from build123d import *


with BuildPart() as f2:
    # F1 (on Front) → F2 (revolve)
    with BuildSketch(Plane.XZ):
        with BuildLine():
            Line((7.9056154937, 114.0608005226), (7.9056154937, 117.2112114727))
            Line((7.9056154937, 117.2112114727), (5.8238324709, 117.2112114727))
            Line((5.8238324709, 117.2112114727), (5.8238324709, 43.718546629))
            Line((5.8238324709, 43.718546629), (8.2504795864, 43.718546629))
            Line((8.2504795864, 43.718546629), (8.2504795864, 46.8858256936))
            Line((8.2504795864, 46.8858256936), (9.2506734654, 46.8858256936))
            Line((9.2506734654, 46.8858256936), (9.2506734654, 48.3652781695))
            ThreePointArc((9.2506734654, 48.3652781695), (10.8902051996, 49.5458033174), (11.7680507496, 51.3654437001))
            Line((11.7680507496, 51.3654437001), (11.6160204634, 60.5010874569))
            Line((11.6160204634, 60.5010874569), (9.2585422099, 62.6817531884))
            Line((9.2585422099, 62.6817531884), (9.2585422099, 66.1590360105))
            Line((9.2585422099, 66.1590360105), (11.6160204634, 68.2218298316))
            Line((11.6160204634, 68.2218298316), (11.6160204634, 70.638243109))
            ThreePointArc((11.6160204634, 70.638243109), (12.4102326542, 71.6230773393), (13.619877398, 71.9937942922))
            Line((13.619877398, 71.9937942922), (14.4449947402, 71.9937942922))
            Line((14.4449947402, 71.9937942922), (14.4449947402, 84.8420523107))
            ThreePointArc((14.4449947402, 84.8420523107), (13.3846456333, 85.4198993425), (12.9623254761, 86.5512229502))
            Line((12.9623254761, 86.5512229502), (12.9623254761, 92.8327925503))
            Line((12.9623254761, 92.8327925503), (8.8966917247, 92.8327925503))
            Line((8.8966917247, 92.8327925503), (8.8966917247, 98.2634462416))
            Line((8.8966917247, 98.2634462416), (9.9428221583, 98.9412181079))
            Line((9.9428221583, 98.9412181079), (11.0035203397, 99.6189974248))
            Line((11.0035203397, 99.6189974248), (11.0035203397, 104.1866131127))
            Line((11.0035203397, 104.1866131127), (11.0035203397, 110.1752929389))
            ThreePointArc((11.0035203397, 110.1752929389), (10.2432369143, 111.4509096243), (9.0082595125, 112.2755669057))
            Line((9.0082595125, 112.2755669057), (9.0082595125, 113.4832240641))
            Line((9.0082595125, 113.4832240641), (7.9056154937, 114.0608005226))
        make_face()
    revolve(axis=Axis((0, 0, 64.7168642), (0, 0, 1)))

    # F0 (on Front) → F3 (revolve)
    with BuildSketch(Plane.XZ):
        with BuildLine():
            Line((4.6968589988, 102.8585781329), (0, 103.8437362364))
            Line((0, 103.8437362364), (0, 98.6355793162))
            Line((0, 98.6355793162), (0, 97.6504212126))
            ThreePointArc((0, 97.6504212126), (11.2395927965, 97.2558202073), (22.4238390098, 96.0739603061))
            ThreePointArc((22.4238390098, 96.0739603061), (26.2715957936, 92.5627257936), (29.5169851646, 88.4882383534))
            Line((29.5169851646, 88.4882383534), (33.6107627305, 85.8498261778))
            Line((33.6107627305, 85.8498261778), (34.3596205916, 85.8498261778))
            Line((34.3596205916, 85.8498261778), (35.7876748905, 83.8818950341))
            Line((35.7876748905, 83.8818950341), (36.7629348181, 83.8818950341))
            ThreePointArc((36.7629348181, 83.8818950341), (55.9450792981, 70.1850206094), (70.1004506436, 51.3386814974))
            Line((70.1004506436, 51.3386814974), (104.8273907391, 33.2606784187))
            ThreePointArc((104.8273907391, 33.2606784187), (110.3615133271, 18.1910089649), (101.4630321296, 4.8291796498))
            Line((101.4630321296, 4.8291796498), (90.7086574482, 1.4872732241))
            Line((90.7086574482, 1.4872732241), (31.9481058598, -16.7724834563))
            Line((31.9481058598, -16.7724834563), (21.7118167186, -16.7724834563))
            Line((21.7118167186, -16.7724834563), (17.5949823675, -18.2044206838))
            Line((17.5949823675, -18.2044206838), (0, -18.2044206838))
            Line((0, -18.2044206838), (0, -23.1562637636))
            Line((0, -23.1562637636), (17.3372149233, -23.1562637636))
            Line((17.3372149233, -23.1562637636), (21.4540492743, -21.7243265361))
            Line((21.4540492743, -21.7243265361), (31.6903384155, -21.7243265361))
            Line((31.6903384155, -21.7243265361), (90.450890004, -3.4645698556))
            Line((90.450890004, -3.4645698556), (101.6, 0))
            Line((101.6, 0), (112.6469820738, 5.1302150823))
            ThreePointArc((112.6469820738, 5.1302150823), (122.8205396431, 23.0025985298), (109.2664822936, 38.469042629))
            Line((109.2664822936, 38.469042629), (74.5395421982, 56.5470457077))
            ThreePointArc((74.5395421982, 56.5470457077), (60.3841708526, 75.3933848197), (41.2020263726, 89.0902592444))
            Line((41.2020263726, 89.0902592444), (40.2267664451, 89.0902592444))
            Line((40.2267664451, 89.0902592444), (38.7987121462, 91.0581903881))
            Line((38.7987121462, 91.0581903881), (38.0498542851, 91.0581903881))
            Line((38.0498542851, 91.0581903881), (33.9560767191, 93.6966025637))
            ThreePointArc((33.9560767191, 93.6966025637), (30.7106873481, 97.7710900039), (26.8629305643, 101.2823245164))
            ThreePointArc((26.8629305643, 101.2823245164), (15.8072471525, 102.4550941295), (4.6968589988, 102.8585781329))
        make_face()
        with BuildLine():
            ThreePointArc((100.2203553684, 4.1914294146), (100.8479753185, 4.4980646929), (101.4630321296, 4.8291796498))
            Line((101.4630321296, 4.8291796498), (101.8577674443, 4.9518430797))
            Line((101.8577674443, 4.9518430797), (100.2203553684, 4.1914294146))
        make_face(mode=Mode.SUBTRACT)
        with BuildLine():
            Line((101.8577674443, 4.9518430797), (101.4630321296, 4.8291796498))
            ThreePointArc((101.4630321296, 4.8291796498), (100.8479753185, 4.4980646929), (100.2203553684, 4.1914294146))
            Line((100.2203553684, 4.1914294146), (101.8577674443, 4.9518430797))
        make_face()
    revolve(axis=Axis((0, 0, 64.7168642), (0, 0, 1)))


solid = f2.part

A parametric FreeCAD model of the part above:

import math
import FreeCAD as App
import Part
import Sketcher
Q = App.Units.Quantity

doc = App.newDocument("Part")
body = doc.addObject("PartDesign::Body", "Body")

# Sketch on XZ plane
sketch1 = doc.addObject("Sketcher::SketchObject", "Sketch")
body.addObject(sketch1)
sketch1.AttachmentSupport = (doc.XZ_Plane, [""])
sketch1.MapMode = "FlatFace"
sketch1.addGeometry([
    Part.LineSegment(App.Vector(7.9, 114.1, 0), App.Vector(7.9, 117.2, 0)),  # 0
    Part.LineSegment(App.Vector(7.9, 117.2, 0), App.Vector(5.8, 117.2, 0)),  # 1
    Part.LineSegment(App.Vector(5.8, 117.2, 0), App.Vector(5.8, 43.7, 0)),  # 2
    Part.LineSegment(App.Vector(5.8, 43.7, 0), App.Vector(8.3, 43.7, 0)),  # 3
    Part.LineSegment(App.Vector(8.3, 43.7, 0), App.Vector(8.3, 46.9, 0)),  # 4
    Part.LineSegment(App.Vector(8.3, 46.9, 0), App.Vector(9.3, 46.9, 0)),  # 5
    Part.LineSegment(App.Vector(9.3, 46.9, 0), App.Vector(9.3, 48.4, 0)),  # 6
    Part.ArcOfCircle(Part.Circle(App.Vector(7.7, 52.2, 0), App.Vector(0, 0, 1), 4.1), math.radians(-68), math.radians(-12)),  # 7
    Part.LineSegment(App.Vector(11.8, 51.4, 0), App.Vector(11.6, 60.5, 0)),  # 8
    Part.LineSegment(App.Vector(11.6, 60.5, 0), App.Vector(9.3, 62.7, 0)),  # 9
    Part.LineSegment(App.Vector(9.3, 62.7, 0), App.Vector(9.3, 66.2, 0)),  # 10
    Part.LineSegment(App.Vector(9.3, 66.2, 0), App.Vector(11.6, 68.2, 0)),  # 11
    Part.LineSegment(App.Vector(11.6, 68.2, 0), App.Vector(11.6, 70.6, 0)),  # 12
    Part.ArcOfCircle(Part.Circle(App.Vector(13.6, 69.8, 0), App.Vector(0, 0, 1), 2.2), math.radians(90), math.radians(158)),  # 13
    Part.LineSegment(App.Vector(13.6, 72, 0), App.Vector(14.4, 72, 0)),  # 14
    Part.LineSegment(App.Vector(14.4, 72, 0), App.Vector(14.4, 84.8, 0)),  # 15
    Part.ArcOfCircle(Part.Circle(App.Vector(14.7, 86.6, 0), App.Vector(0, 0, 1), 1.7), math.radians(180), math.radians(262)),  # 16
    Part.LineSegment(App.Vector(13, 86.6, 0), App.Vector(13, 92.8, 0)),  # 17
    Part.LineSegment(App.Vector(13, 92.8, 0), App.Vector(8.9, 92.8, 0)),  # 18
    Part.LineSegment(App.Vector(8.9, 92.8, 0), App.Vector(8.9, 98.3, 0)),  # 19
    Part.LineSegment(App.Vector(8.9, 98.3, 0), App.Vector(9.9, 98.9, 0)),  # 20
    Part.LineSegment(App.Vector(9.9, 98.9, 0), App.Vector(11, 99.6, 0)),  # 21
    Part.LineSegment(App.Vector(11, 99.6, 0), App.Vector(11, 110.2, 0)),  # 22
    Part.ArcOfCircle(Part.Circle(App.Vector(7.8, 109.1, 0), App.Vector(0, 0, 1), 3.4), math.radians(18), math.radians(69)),  # 23
    Part.LineSegment(App.Vector(9, 112.3, 0), App.Vector(9, 113.5, 0)),  # 24
    Part.LineSegment(App.Vector(9, 113.5, 0), App.Vector(7.9, 114.1, 0)),  # 25
], False)
sketch1.addConstraint([
    Sketcher.Constraint("Coincident", 0, 2, 1, 1),
    Sketcher.Constraint("Coincident", 1, 2, 2, 1),
    Sketcher.Constraint("Coincident", 2, 2, 3, 1),
    Sketcher.Constraint("Coincident", 3, 2, 4, 1),
    Sketcher.Constraint("Coincident", 4, 2, 5, 1),
    Sketcher.Constraint("Coincident", 5, 2, 6, 1),
    Sketcher.Constraint("Coincident", 6, 2, 7, 1),
    Sketcher.Constraint("Coincident", 7, 2, 8, 1),
    Sketcher.Constraint("Coincident", 8, 2, 9, 1),
    Sketcher.Constraint("Coincident", 9, 2, 10, 1),
    Sketcher.Constraint("Coincident", 10, 2, 11, 1),
    Sketcher.Constraint("Coincident", 11, 2, 12, 1),
    Sketcher.Constraint("Coincident", 12, 2, 13, 2),
    Sketcher.Constraint("Tangent", 13, 1, 14, 1),
    Sketcher.Constraint("Coincident", 14, 2, 15, 1),
    Sketcher.Constraint("Coincident", 15, 2, 16, 2),
    Sketcher.Constraint("Tangent", 16, 1, 17, 1),
    Sketcher.Constraint("Coincident", 17, 2, 18, 1),
    Sketcher.Constraint("Coincident", 18, 2, 19, 1),
    Sketcher.Constraint("Coincident", 19, 2, 20, 1),
    Sketcher.Constraint("Coincident", 20, 2, 21, 1),
    Sketcher.Constraint("Coincident", 21, 2, 22, 1),
    Sketcher.Constraint("Coincident", 22, 2, 23, 1),
    Sketcher.Constraint("Coincident", 23, 2, 24, 1),
    Sketcher.Constraint("Coincident", 24, 2, 25, 1),
    Sketcher.Constraint("Coincident", 25, 2, 0, 1),
    Sketcher.Constraint("Vertical", 0),
    Sketcher.Constraint("Horizontal", 1),
    Sketcher.Constraint("Vertical", 2),
    Sketcher.Constraint("Horizontal", 3),
    Sketcher.Constraint("Vertical", 4),
    Sketcher.Constraint("Horizontal", 5),
    Sketcher.Constraint("Vertical", 6),
    Sketcher.Constraint("Vertical", 10),
    Sketcher.Constraint("Vertical", 12),
    Sketcher.Constraint("Horizontal", 14),
    Sketcher.Constraint("Vertical", 15),
    Sketcher.Constraint("Vertical", 17),
    Sketcher.Constraint("Horizontal", 18),
    Sketcher.Constraint("Vertical", 19),
    Sketcher.Constraint("Vertical", 22),
    Sketcher.Constraint("Vertical", 24),
    Sketcher.Constraint("Vertical", 8, 2, 11, 2),
    Sketcher.Constraint("Radius", 7, Q("4.1051 mm")),
    Sketcher.Constraint("Radius", 16, Q("1.726471 mm")),
    Sketcher.Constraint("Radius", 13, Q("2.158886 mm")),
    Sketcher.Constraint("Radius", 23, Q("3.368042 mm")),
    Sketcher.Constraint("DistanceY", 13, 1, 17, 2, Q("20.838998 mm")),
    Sketcher.Constraint("Distance", 20, Q("1.246501 mm")),
    Sketcher.Constraint("DistanceY", 0, 1, 0, 2, Q("3.150411 mm")),
    Sketcher.Constraint("DistanceY", 4, 1, 4, 2, Q("3.167279 mm")),
    Sketcher.Constraint("DistanceY", 15, 1, 15, 2, Q("12.848258 mm")),
    Sketcher.Constraint("DistanceY", 17, 1, 17, 2, Q("6.28157 mm")),
    Sketcher.Constraint("DistanceY", -1, 1, 25, 2, Q("114.060801 mm")),
    Sketcher.Constraint("DistanceY", 7, 3, 23, 3, Q("56.946699 mm")),
    Sketcher.Constraint("DistanceX", 20, 2, 21, 2, Q("1.060698 mm")),
    Sketcher.Constraint("Distance", 8, Q("9.136909 mm")),
    Sketcher.Constraint("DistanceX", 1, 2, 1, 1, Q("2.081783 mm")),
    Sketcher.Constraint("DistanceX", 3, 1, 3, 2, Q("2.426647 mm")),
    Sketcher.Constraint("DistanceX", 5, 1, 5, 2, Q("1.000194 mm")),
    Sketcher.Constraint("DistanceX", 14, 1, 14, 2, Q("0.825117 mm")),
    Sketcher.Constraint("DistanceX", 18, 2, 18, 1, Q("4.065634 mm")),
    Sketcher.Constraint("DistanceY", 2, 2, 2, 1, Q("73.492665 mm")),
    Sketcher.Constraint("DistanceY", 6, 1, 6, 2, Q("1.479452 mm")),
    Sketcher.Constraint("DistanceY", 10, 1, 10, 2, Q("3.477283 mm")),
    Sketcher.Constraint("DistanceY", 12, 1, 12, 2, Q("2.416413 mm")),
    Sketcher.Constraint("DistanceY", 19, 1, 19, 2, Q("5.430654 mm")),
    Sketcher.Constraint("DistanceY", 22, 1, 22, 2, Q("10.556296 mm")),
    Sketcher.Constraint("DistanceY", 24, 1, 24, 2, Q("1.207657 mm")),
    Sketcher.Constraint("DistanceY", -1, 1, 13, 3, Q("69.834908 mm")),
    Sketcher.Constraint("DistanceX", -1, 1, 23, 3, Q("7.801408 mm")),
    Sketcher.Constraint("DistanceY", -1, 1, 23, 3, Q("109.131172 mm")),
    Sketcher.Constraint("DistanceX", -1, 1, 3, 2, Q("8.25048 mm")),
    Sketcher.Constraint("DistanceX", -1, 1, 7, 2, Q("11.768051 mm")),
    Sketcher.Constraint("DistanceX", -1, 1, 8, 2, Q("11.61602 mm")),
    Sketcher.Constraint("DistanceY", -1, 1, 11, 2, Q("68.22183 mm")),
    Sketcher.Constraint("DistanceY", -1, 1, 20, 2, Q("98.941218 mm")),
    Sketcher.Constraint("DistanceX", -1, 1, 23, 2, Q("9.00826 mm")),
    Sketcher.Constraint("DistanceX", 9, 2, 8, 2, Q("2.357478 mm")),
    Sketcher.Constraint("DistanceY", 7, 3, 9, 2, Q("10.49728 mm")),
])
revolution = doc.addObject("PartDesign::Revolution", "Revolution")
body.addObject(revolution)
revolution.Profile = sketch1
revolution.ReferenceAxis = (sketch1, ["V_Axis"])
revolution.Angle = 360

# Sketch on XZ plane
sketch2 = doc.addObject("Sketcher::SketchObject", "Sketch001")
body.addObject(sketch2)
sketch2.AttachmentSupport = (doc.XZ_Plane, [""])
sketch2.MapMode = "FlatFace"
sketch2.addGeometry([
    Part.ArcOfCircle(Part.Circle(App.Vector(6.7, 75.3, 0), App.Vector(0, 0, 1), 32.9), math.radians(34), math.radians(52.16)),  # 0
    Part.ArcOfCircle(Part.Circle(App.Vector(4.4, -57.4, 0), App.Vector(0, 0, 1), 160.3), math.radians(81.96), math.radians(89.91)),  # 1
    Part.LineSegment(App.Vector(4.7, 102.9, 0), App.Vector(0, 103.8, 0)),  # 2
    Part.LineSegment(App.Vector(0, 103.8, 0), App.Vector(0, 97.7, 0)),  # 3
    Part.ArcOfCircle(Part.Circle(App.Vector(0, -62.6, 0), App.Vector(0, 0, 1), 160.3), math.radians(81.96), math.radians(90)),  # 4
    Part.ArcOfCircle(Part.Circle(App.Vector(2.2, 70.1, 0), App.Vector(0, 0, 1), 32.9), math.radians(34), math.radians(52.16)),  # 5
    Part.LineSegment(App.Vector(29.5, 88.5, 0), App.Vector(33.6, 85.8, 0)),  # 6
    Part.LineSegment(App.Vector(33.6, 85.8, 0), App.Vector(34.4, 85.8, 0)),  # 7
    Part.LineSegment(App.Vector(34.4, 85.8, 0), App.Vector(35.8, 83.9, 0)),  # 8
    Part.LineSegment(App.Vector(35.8, 83.9, 0), App.Vector(36.8, 83.9, 0)),  # 9
    Part.ArcOfCircle(Part.Circle(App.Vector(2, 14.9, 0), App.Vector(0, 0, 1), 77.2), math.radians(28), math.radians(63)),  # 10
    Part.LineSegment(App.Vector(70.1, 51.3, 0), App.Vector(104.8, 33.3, 0)),  # 11
    Part.ArcOfCircle(Part.Circle(App.Vector(92.8, 20.3, 0), App.Vector(0, 0, 1), 17.7), math.radians(-61), math.radians(47)),  # 12
    Part.LineSegment(App.Vector(101.5, 4.8, 0), App.Vector(90.7, 1.5, 0)),  # 13
    Part.LineSegment(App.Vector(90.7, 1.5, 0), App.Vector(31.9, -16.8, 0)),  # 14
    Part.LineSegment(App.Vector(31.9, -16.8, 0), App.Vector(21.7, -16.8, 0)),  # 15
    Part.LineSegment(App.Vector(21.7, -16.8, 0), App.Vector(17.6, -18.2, 0)),  # 16
    Part.LineSegment(App.Vector(17.6, -18.2, 0), App.Vector(0, -18.2, 0)),  # 17
    Part.LineSegment(App.Vector(0, -18.2, 0), App.Vector(0, -23.2, 0)),  # 18
    Part.LineSegment(App.Vector(0, -23.2, 0), App.Vector(17.3, -23.2, 0)),  # 19
    Part.LineSegment(App.Vector(17.3, -23.2, 0), App.Vector(21.5, -21.7, 0)),  # 20
    Part.LineSegment(App.Vector(21.5, -21.7, 0), App.Vector(31.7, -21.7, 0)),  # 21
    Part.LineSegment(App.Vector(31.7, -21.7, 0), App.Vector(90.5, -3.5, 0)),  # 22
    Part.LineSegment(App.Vector(90.5, -3.5, 0), App.Vector(101.6, 0, 0)),  # 23
    Part.LineSegment(App.Vector(101.6, 0, 0), App.Vector(112.6, 5.1, 0)),  # 24
    Part.ArcOfCircle(Part.Circle(App.Vector(105.2, 21.2, 0), App.Vector(0, 0, 1), 17.7), math.radians(-65), math.radians(77)),  # 25
    Part.LineSegment(App.Vector(109.3, 38.5, 0), App.Vector(74.5, 56.5, 0)),  # 26
    Part.ArcOfCircle(Part.Circle(App.Vector(6.5, 20.1, 0), App.Vector(0, 0, 1), 77.2), math.radians(28), math.radians(63)),  # 27
    Part.LineSegment(App.Vector(41.2, 89.1, 0), App.Vector(40.2, 89.1, 0)),  # 28
    Part.LineSegment(App.Vector(40.2, 89.1, 0), App.Vector(38.8, 91.1, 0)),  # 29
    Part.LineSegment(App.Vector(38.8, 91.1, 0), App.Vector(38, 91.1, 0)),  # 30
    Part.LineSegment(App.Vector(38, 91.1, 0), App.Vector(34, 93.7, 0)),  # 31
], False)
sketch2.addConstraint([
    Sketcher.Constraint("Coincident", 0, 2, 1, 1),
    Sketcher.Constraint("Coincident", 1, 2, 2, 1),
    Sketcher.Constraint("Coincident", 2, 2, 3, 1),
    Sketcher.Constraint("Coincident", 3, 2, 4, 2),
    Sketcher.Constraint("Coincident", 4, 1, 5, 2),
    Sketcher.Constraint("Coincident", 5, 1, 6, 1),
    Sketcher.Constraint("Coincident", 6, 2, 7, 1),
    Sketcher.Constraint("Coincident", 7, 2, 8, 1),
    Sketcher.Constraint("Coincident", 8, 2, 9, 1),
    Sketcher.Constraint("Coincident", 9, 2, 10, 2),
    Sketcher.Constraint("Coincident", 10, 1, 11, 1),
    Sketcher.Constraint("Coincident", 11, 2, 12, 2),
    Sketcher.Constraint("Coincident", 12, 1, 13, 1),
    Sketcher.Constraint("Coincident", 13, 2, 14, 1),
    Sketcher.Constraint("Coincident", 14, 2, 15, 1),
    Sketcher.Constraint("Coincident", 15, 2, 16, 1),
    Sketcher.Constraint("Coincident", 16, 2, 17, 1),
    Sketcher.Constraint("Coincident", 17, 2, 18, 1),
    Sketcher.Constraint("Coincident", 18, 2, 19, 1),
    Sketcher.Constraint("Coincident", 19, 2, 20, 1),
    Sketcher.Constraint("Coincident", 20, 2, 21, 1),
    Sketcher.Constraint("Coincident", 21, 2, 22, 1),
    Sketcher.Constraint("Coincident", 22, 2, 23, 1),
    Sketcher.Constraint("Coincident", 23, 2, 24, 1),
    Sketcher.Constraint("Tangent", 24, 2, 25, 1),
    Sketcher.Constraint("Coincident", 25, 2, 26, 1),
    Sketcher.Constraint("Coincident", 26, 2, 27, 1),
    Sketcher.Constraint("Coincident", 27, 2, 28, 1),
    Sketcher.Constraint("Coincident", 28, 2, 29, 1),
    Sketcher.Constraint("Coincident", 29, 2, 30, 1),
    Sketcher.Constraint("Coincident", 30, 2, 31, 1),
    Sketcher.Constraint("Coincident", 31, 2, 0, 1),
    Sketcher.Constraint("Vertical", 3),
    Sketcher.Constraint("Horizontal", 7),
    Sketcher.Constraint("Horizontal", 9),
    Sketcher.Constraint("Horizontal", 15),
    Sketcher.Constraint("Horizontal", 17),
    Sketcher.Constraint("Vertical", 18),
    Sketcher.Constraint("Horizontal", 19),
    Sketcher.Constraint("Horizontal", 21),
    Sketcher.Constraint("Horizontal", 28),
    Sketcher.Constraint("Horizontal", 30),
    Sketcher.Constraint("Equal", 1, 4),
    Sketcher.Constraint("Equal", 0, 5),
    Sketcher.Constraint("Equal", 12, 25),
    Sketcher.Constraint("Equal", 10, 27),
    Sketcher.Constraint("PointOnObject", 4, 3, -2),
    Sketcher.Constraint("PointOnObject", 2, 2, -2),
    Sketcher.Constraint("PointOnObject", 17, 2, -2),
    Sketcher.Constraint("PointOnObject", 23, 2, -1),
    Sketcher.Constraint("Parallel", 13, 14),
    Sketcher.Constraint("Parallel", 16, 20),
    Sketcher.Constraint("Parallel", 14, 22),
    Sketcher.Constraint("Parallel", 22, 23),
    Sketcher.Constraint("Parallel", 11, 26),
    Sketcher.Constraint("Parallel", 8, 29),
    Sketcher.Constraint("Parallel", 6, 31),
    Sketcher.Constraint("Equal", 15, 21),
    Sketcher.Constraint("Equal", 9, 28),
    Sketcher.Constraint("Equal", 7, 30),
    Sketcher.Constraint("Equal", 16, 20),
    Sketcher.Constraint("Equal", 14, 22),
    Sketcher.Constraint("Equal", 11, 26),
    Sketcher.Constraint("Equal", 8, 29),
    Sketcher.Constraint("Equal", 6, 31),
    Sketcher.Constraint("DistanceX", -1, 1, 23, 2, Q("101.6 mm")),
    Sketcher.Constraint("Radius", 0, Q("32.90238 mm")),
    Sketcher.Constraint("Radius", 12, Q("17.73317 mm")),
    Sketcher.Constraint("Radius", 1, Q("160.268416 mm")),
    Sketcher.Constraint("Radius", 10, Q("77.201618 mm")),
    Sketcher.Constraint("DistanceX", 9, 1, 9, 2, Q("0.97526 mm")),
    Sketcher.Constraint("DistanceX", 15, 2, 15, 1, Q("10.236289 mm")),
    Sketcher.Constraint("DistanceY", 25, 3, 0, 3, Q("54.085299 mm")),
    Sketcher.Constraint("DistanceY", 10, 3, 1, 2, Q("87.917501 mm")),
    Sketcher.Constraint("DistanceY", 6, 2, 0, 2, Q("15.432498 mm")),
    Sketcher.Constraint("DistanceY", 12, 1, 11, 2, Q("28.431499 mm")),
    Sketcher.Constraint("DistanceY", 12, 1, 10, 1, Q("46.509502 mm")),
    Sketcher.Constraint("DistanceY", 13, 2, 12, 3, Q("18.7876 mm")),
    Sketcher.Constraint("DistanceX", 10, 3, 16, 2, Q("15.5776 mm")),
    Sketcher.Constraint("DistanceX", 19, 2, 15, 2, Q("4.374602 mm")),
    Sketcher.Constraint("DistanceX", 22, 2, 11, 2, Q("14.376501 mm")),
    Sketcher.Constraint("DistanceX", 25, 2, 24, 2, Q("3.3805 mm")),
    Sketcher.Constraint("Distance", 8, Q("2.431479 mm")),
    Sketcher.Constraint("Distance", 23, Q("11.675012 mm")),
    Sketcher.Constraint("DistanceX", 7, 1, 7, 2, Q("0.748858 mm")),
    Sketcher.Constraint("DistanceX", 17, 2, 17, 1, Q("17.594982 mm")),
    Sketcher.Constraint("DistanceX", 19, 1, 19, 2, Q("17.337215 mm")),
    Sketcher.Constraint("DistanceY", 3, 2, 3, 1, Q("6.193315 mm")),
    Sketcher.Constraint("DistanceY", 18, 2, 18, 1, Q("4.951843 mm")),
    Sketcher.Constraint("DistanceY", -1, 1, 0, 3, Q("75.298958 mm")),
    Sketcher.Constraint("DistanceX", -1, 1, 1, 3, Q("4.439092 mm")),
    Sketcher.Constraint("DistanceY", 1, 3, -1, 1, Q("57.409631 mm")),
    Sketcher.Constraint("DistanceX", -1, 1, 5, 3, Q("2.238911 mm")),
    Sketcher.Constraint("DistanceX", -1, 1, 12, 3, Q("92.751209 mm")),
    Sketcher.Constraint("DistanceY", -1, 1, 27, 3, Q("20.149441 mm")),
    Sketcher.Constraint("DistanceX", -1, 1, 0, 2, Q("26.862931 mm")),
    Sketcher.Constraint("DistanceX", -1, 1, 1, 2, Q("4.696859 mm")),
    Sketcher.Constraint("DistanceY", -1, 1, 3, 2, Q("97.650421 mm")),
    Sketcher.Constraint("DistanceX", -1, 1, 4, 1, Q("22.423839 mm")),
    Sketcher.Constraint("DistanceY", -1, 1, 5, 1, Q("88.488238 mm")),
    Sketcher.Constraint("DistanceX", -1, 1, 7, 2, Q("34.359621 mm")),
    Sketcher.Constraint("DistanceY", 16, 2, -1, 1, Q("18.204421 mm")),
    Sketcher.Constraint("DistanceY", -1, 1, 27, 2, Q("89.090259 mm")),
])
revolution2 = doc.addObject("PartDesign::Revolution", "Revolution001")
body.addObject(revolution2)
revolution2.Profile = sketch2
revolution2.ReferenceAxis = (sketch2, ["V_Axis"])
revolution2.Angle = 360

doc.recompute()
